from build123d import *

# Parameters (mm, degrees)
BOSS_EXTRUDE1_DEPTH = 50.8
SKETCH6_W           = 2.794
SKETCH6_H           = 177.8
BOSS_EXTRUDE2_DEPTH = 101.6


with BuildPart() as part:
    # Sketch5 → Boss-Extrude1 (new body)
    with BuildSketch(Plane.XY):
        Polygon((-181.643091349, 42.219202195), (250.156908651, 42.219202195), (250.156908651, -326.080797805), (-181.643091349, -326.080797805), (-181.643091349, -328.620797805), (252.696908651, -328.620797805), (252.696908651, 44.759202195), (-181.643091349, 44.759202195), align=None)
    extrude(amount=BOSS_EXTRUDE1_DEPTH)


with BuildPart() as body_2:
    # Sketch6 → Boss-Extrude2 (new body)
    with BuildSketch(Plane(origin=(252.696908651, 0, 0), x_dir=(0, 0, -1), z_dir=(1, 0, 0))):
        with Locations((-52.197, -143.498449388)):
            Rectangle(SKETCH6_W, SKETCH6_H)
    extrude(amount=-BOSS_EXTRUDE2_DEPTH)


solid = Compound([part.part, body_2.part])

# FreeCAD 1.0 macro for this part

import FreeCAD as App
import Part
import Sketcher

V = App.Vector
Q = App.Units.Quantity

doc = App.newDocument("Part")
body = doc.addObject("PartDesign::Body", "Body")

sketch1 = body.newObject("Sketcher::SketchObject", "Sketch")
sketch1.AttachmentSupport = (doc.getObject("XY_Plane"), [""])
sketch1.MapMode = "FlatFace"
sketch1.addGeometry(Part.LineSegment(V(-181.643091, 42.219202, 0), V(250.156909, 42.219202, 0)), False)
sketch1.addGeometry(Part.LineSegment(V(250.156909, 42.219202, 0), V(250.156909, -326.080798, 0)), False)
sketch1.addGeometry(Part.LineSegment(V(250.156909, -326.080798, 0), V(-181.643091, -326.080798, 0)), False)
sketch1.addGeometry(Part.LineSegment(V(-181.643091, -326.080798, 0), V(-181.643091, -328.620798, 0)), False)
sketch1.addGeometry(Part.LineSegment(V(-181.643091, -328.620798, 0), V(252.696909, -328.620798, 0)), False)
sketch1.addGeometry(Part.LineSegment(V(252.696909, -328.620798, 0), V(252.696909, 44.759202, 0)), False)
sketch1.addGeometry(Part.LineSegment(V(252.696909, 44.759202, 0), V(-181.643091, 44.759202, 0)), False)
sketch1.addGeometry(Part.LineSegment(V(-181.643091, 44.759202, 0), V(-181.643091, 42.219202, 0)), False)
sketch1.addConstraint(Sketcher.Constraint("Coincident", 0, 2, 1, 1))
sketch1.addConstraint(Sketcher.Constraint("Coincident", 1, 2, 2, 1))
sketch1.addConstraint(Sketcher.Constraint("Coincident", 2, 2, 3, 1))
sketch1.addConstraint(Sketcher.Constraint("Coincident", 3, 2, 4, 1))
sketch1.addConstraint(Sketcher.Constraint("Coincident", 4, 2, 5, 1))
sketch1.addConstraint(Sketcher.Constraint("Coincident", 5, 2, 6, 1))
sketch1.addConstraint(Sketcher.Constraint("Coincident", 6, 2, 7, 1))
sketch1.addConstraint(Sketcher.Constraint("Coincident", 7, 2, 0, 1))
sketch1.addConstraint(Sketcher.Constraint("Horizontal", 0))
sketch1.addConstraint(Sketcher.Constraint("Vertical", 1))
sketch1.addConstraint(Sketcher.Constraint("Horizontal", 2))
sketch1.addConstraint(Sketcher.Constraint("Vertical", 3))
sketch1.addConstraint(Sketcher.Constraint("Horizontal", 4))
sketch1.addConstraint(Sketcher.Constraint("Vertical", 5))
sketch1.addConstraint(Sketcher.Constraint("Horizontal", 6))
sketch1.addConstraint(Sketcher.Constraint("Vertical", 7))
sketch1.addConstraint(Sketcher.Constraint("Vertical", 3, 2, 6, 2))
sketch1.addConstraint(Sketcher.Constraint("Equal", 3, 7))
sketch1.addConstraint(Sketcher.Constraint("DistanceX", 0, 1, 0, 2, Q("17 in")))
sketch1.addConstraint(Sketcher.Constraint("DistanceX", 4, 1, 4, 2, Q("17.1 in")))
sketch1.addConstraint(Sketcher.Constraint("DistanceY", 1, 2, 1, 1, Q("14.5 in")))
sketch1.addConstraint(Sketcher.Constraint("DistanceY", 3, 2, 3, 1, Q("0.1 in")))
sketch1.addConstraint(Sketcher.Constraint("DistanceX", -1, 1, 0, 2, 250.156909))
sketch1.addConstraint(Sketcher.Constraint("DistanceY", -1, 1, 0, 2, 42.219202))
pad1 = body.newObject("PartDesign::Pad", "Pad")
pad1.Profile = sketch1
pad1.Length = Q("2 in")
body2 = doc.addObject("PartDesign::Body", "Body001")

sketch2 = body2.newObject("Sketcher::SketchObject", "Sketch001")
sketch2.AttachmentSupport = (doc.getObject("YZ_Plane001"), [""])
sketch2.MapMode = "FlatFace"
sketch2.AttachmentOffset = App.Placement(V(0, 0, 252.696909), App.Rotation())
sketch2.addGeometry(Part.LineSegment(V(-54.598449, 53.594, 0), V(-232.398449, 53.594, 0)), False)
sketch2.addGeometry(Part.LineSegment(V(-232.398449, 53.594, 0), V(-232.398449, 50.8, 0)), False)
sketch2.addGeometry(Part.LineSegment(V(-232.398449, 50.8, 0), V(-54.598449, 50.8, 0)), False)
sketch2.addGeometry(Part.LineSegment(V(-54.598449, 50.8, 0), V(-54.598449, 53.594, 0)), False)
sketch2.addConstraint(Sketcher.Constraint("Coincident", 0, 2, 1, 1))
sketch2.addConstraint(Sketcher.Constraint("Coincident", 1, 2, 2, 1))
sketch2.addConstraint(Sketcher.Constraint("Coincident", 2, 2, 3, 1))
sketch2.addConstraint(Sketcher.Constraint("Coincident", 3, 2, 0, 1))
sketch2.addConstraint(Sketcher.Constraint("Horizontal", 0))
sketch2.addConstraint(Sketcher.Constraint("Vertical", 1))
sketch2.addConstraint(Sketcher.Constraint("Horizontal", 2))
sketch2.addConstraint(Sketcher.Constraint("Vertical", 3))
sketch2.addConstraint(Sketcher.Constraint("DistanceX", 0, 2, 0, 1, Q("7 in")))
sketch2.addConstraint(Sketcher.Constraint("DistanceY", -1, 1, 1, 2, Q("2 in")))
sketch2.addConstraint(Sketcher.Constraint("DistanceY", 1, 2, 1, 1, Q("0.11 in")))
sketch2.addConstraint(Sketcher.Constraint("DistanceX", 0, 2, -1, 1, 232.398449))
pad2 = body2.newObject("PartDesign::Pad", "Pad001")
pad2.Profile = sketch2
pad2.Length = Q("4 in")
pad2.Reversed = True

doc.recompute()
